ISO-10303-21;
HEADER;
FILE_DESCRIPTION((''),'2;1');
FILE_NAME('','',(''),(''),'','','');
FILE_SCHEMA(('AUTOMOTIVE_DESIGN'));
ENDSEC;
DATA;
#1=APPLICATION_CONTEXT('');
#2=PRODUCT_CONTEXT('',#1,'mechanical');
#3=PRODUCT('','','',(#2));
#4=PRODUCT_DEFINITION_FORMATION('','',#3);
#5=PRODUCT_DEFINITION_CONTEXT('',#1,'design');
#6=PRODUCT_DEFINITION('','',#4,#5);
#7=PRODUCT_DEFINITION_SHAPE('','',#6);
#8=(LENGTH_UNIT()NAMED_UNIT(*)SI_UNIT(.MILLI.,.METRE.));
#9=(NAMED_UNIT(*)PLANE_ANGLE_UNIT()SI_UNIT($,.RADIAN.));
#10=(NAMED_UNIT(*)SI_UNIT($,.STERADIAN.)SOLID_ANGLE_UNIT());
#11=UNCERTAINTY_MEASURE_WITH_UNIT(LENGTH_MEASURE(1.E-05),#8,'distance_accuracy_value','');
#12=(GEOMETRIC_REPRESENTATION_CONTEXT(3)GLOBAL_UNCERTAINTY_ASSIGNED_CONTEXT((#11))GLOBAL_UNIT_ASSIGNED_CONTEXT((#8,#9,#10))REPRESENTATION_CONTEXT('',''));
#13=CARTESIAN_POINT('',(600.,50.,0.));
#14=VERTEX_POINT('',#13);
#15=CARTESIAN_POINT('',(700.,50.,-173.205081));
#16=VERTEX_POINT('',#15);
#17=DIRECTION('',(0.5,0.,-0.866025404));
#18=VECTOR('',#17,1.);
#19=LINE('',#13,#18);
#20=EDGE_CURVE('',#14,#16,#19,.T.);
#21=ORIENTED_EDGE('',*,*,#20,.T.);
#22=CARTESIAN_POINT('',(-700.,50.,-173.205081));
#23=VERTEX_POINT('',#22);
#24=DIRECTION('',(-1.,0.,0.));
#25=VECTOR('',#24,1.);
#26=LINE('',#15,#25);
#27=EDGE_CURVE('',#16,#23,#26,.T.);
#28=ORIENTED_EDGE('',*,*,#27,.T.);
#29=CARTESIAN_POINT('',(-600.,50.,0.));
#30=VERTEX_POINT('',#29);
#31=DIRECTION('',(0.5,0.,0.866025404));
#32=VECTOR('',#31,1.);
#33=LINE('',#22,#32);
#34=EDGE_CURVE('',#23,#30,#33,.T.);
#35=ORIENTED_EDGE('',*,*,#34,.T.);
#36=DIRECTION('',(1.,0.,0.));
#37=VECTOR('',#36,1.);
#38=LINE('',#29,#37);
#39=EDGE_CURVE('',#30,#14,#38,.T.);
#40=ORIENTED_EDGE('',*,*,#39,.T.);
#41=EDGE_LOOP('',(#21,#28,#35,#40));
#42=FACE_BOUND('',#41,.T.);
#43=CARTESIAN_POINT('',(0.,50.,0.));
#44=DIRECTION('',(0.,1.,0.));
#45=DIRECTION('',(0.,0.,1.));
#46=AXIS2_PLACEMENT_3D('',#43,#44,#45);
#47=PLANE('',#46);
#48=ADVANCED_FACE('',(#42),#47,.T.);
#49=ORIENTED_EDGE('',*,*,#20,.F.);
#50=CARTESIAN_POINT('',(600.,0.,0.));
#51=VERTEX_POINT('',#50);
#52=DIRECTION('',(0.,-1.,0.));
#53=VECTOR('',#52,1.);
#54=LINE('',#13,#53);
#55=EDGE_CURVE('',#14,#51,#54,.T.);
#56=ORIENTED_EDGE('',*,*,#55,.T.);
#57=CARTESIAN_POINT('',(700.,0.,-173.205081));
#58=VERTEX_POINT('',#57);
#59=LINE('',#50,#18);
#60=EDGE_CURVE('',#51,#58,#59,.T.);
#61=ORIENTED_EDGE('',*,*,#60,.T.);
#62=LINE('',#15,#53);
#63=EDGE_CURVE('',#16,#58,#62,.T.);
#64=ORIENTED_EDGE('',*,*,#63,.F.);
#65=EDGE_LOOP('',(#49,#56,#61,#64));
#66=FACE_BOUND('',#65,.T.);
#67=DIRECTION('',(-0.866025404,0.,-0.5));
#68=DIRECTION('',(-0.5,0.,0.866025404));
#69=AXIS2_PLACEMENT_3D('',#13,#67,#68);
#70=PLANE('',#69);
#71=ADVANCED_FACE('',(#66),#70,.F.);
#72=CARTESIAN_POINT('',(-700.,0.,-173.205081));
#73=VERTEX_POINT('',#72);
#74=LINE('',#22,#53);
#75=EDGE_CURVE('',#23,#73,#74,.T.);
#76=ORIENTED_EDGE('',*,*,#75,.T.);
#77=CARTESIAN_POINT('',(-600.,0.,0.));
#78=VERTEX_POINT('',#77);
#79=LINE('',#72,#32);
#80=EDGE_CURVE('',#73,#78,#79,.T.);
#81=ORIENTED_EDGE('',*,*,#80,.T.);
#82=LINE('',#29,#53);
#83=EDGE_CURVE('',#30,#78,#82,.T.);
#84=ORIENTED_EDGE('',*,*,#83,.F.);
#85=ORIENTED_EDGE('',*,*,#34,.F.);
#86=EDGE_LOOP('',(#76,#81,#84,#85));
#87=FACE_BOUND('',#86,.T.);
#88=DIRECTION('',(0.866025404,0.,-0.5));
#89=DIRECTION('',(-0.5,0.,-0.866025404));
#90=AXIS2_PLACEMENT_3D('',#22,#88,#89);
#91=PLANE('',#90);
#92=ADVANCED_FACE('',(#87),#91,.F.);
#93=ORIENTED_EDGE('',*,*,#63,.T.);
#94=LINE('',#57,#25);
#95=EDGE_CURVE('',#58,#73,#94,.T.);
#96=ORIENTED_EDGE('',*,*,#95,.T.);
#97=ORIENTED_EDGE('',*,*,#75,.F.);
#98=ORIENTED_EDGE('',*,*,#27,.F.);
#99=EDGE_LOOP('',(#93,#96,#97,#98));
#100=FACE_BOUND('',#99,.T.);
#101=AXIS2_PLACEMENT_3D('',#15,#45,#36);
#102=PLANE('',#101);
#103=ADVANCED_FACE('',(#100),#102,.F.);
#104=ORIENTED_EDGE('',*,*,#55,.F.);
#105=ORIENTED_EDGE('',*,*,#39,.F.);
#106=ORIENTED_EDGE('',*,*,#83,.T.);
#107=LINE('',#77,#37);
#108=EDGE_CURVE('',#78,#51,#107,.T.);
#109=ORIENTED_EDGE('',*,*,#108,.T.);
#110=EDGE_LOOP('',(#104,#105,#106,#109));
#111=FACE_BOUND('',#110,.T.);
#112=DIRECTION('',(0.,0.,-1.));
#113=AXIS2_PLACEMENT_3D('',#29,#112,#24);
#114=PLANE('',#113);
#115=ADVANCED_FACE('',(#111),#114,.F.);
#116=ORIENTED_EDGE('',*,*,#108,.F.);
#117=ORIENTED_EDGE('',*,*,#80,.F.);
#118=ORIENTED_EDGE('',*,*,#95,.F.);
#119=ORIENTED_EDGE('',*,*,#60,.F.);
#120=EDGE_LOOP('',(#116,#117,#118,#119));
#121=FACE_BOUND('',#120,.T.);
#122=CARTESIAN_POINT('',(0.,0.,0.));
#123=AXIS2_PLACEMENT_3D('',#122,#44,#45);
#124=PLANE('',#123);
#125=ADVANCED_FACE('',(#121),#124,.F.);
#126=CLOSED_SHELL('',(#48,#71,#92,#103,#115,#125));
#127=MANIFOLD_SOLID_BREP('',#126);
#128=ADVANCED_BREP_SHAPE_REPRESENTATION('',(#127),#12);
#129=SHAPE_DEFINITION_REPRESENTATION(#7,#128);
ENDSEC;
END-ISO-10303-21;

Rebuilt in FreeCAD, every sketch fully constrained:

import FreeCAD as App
import Part
import Sketcher
Q = App.Units.Quantity


def add_polygon(sketch, points):
    """Adds a closed chain of lines whose ends are joined by coincident constraints."""
    first, n = sketch.GeometryCount, len(points)
    for a, b in zip(points, points[1:] + points[:1]):
        sketch.addGeometry(Part.LineSegment(App.Vector(*a, 0), App.Vector(*b, 0)), False)
    for i in range(n):
        sketch.addConstraint(Sketcher.Constraint("Coincident", first + i, 2, first + (i + 1) % n, 1))

doc = App.newDocument("Part")
body = doc.addObject("PartDesign::Body", "Body")

# Sketch on XZ plane
sketch1 = body.newObject("Sketcher::SketchObject", "Sketch")
sketch1.AttachmentSupport = (doc.getObject("XZ_Plane"), [""])
sketch1.MapMode = "FlatFace"
add_polygon(sketch1, [(-600, 0), (600, 0), (700, -173.205081), (-700, -173.205081)])  # lines 0-3
sketch1.addConstraint(Sketcher.Constraint("Horizontal", 0))
sketch1.addConstraint(Sketcher.Constraint("Horizontal", 2))
sketch1.addConstraint(Sketcher.Constraint("Symmetric", 0, 2, 3, 2, -1, 1))
sketch1.addConstraint(Sketcher.Constraint("Equal", 1, 3))
sketch1.addConstraint(Sketcher.Constraint("DistanceX", 0, 1, 0, 2, 1200.0))
sketch1.addConstraint(Sketcher.Constraint("DistanceX", 2, 2, 2, 1, 1400.0))
sketch1.addConstraint(Sketcher.Constraint("Angle", 1, Q("-60 deg")))
pad1 = body.newObject("PartDesign::Pad", "Pad")
pad1.Profile = sketch1
pad1.Length = 50
pad1.Reversed = True

doc.recompute()
